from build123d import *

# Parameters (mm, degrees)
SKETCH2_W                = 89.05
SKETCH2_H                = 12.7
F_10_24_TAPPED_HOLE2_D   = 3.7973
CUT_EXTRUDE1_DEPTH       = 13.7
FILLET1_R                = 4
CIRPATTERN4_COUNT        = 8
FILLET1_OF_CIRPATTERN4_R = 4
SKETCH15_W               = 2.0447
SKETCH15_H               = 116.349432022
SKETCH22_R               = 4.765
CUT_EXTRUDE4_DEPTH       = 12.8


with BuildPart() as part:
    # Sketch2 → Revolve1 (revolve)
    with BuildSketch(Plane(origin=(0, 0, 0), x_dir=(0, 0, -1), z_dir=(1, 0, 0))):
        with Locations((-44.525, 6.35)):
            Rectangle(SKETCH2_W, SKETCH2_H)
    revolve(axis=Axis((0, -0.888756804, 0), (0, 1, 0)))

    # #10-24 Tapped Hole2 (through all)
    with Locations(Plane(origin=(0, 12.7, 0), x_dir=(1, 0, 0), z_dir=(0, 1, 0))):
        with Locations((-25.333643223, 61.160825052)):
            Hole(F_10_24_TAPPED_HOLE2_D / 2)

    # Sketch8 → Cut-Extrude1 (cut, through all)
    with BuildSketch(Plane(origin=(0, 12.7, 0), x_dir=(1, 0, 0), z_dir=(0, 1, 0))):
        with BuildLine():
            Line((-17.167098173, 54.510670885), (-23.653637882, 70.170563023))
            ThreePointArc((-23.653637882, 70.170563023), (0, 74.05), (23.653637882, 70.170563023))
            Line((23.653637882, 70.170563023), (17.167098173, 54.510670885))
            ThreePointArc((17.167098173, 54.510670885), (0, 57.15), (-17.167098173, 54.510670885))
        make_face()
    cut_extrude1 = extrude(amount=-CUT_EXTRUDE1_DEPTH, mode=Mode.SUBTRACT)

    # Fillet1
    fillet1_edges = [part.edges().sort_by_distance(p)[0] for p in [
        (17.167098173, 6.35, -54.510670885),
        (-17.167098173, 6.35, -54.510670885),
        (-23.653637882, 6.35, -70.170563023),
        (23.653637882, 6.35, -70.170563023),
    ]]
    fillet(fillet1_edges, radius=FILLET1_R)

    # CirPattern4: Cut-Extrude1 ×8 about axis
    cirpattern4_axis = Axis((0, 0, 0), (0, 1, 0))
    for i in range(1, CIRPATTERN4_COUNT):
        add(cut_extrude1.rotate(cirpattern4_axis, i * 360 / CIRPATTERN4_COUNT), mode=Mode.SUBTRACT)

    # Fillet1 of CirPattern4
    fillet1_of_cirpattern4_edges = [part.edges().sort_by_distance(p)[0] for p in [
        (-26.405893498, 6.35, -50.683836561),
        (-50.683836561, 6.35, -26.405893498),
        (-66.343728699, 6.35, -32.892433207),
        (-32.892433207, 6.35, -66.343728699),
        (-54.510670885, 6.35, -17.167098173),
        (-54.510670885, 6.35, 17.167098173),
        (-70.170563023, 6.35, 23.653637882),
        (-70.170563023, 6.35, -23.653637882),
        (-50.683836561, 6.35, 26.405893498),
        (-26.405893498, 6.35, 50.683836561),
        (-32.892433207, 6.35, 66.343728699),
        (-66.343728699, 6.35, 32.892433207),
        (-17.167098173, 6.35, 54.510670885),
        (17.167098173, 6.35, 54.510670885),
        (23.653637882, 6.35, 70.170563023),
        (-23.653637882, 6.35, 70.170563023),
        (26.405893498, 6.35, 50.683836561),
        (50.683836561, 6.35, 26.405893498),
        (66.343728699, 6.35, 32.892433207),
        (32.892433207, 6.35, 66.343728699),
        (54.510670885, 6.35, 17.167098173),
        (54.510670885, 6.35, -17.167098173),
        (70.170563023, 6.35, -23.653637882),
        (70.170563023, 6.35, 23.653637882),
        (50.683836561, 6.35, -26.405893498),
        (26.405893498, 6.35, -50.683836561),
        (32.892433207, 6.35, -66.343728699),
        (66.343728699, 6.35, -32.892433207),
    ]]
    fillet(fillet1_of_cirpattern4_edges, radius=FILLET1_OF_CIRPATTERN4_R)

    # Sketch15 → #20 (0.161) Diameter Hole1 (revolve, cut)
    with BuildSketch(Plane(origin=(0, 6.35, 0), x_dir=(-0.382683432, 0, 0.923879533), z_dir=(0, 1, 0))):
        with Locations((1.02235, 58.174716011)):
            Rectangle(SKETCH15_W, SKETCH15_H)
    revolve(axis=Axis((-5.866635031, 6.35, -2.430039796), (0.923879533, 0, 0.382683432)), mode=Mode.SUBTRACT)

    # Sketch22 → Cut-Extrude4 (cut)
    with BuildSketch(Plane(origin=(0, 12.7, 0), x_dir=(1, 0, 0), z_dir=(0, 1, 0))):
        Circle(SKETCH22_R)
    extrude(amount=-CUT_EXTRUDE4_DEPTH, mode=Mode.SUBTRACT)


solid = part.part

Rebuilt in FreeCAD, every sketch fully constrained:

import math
import FreeCAD as App
import Part
import Sketcher
from FreeCAD import Vector
Q = App.Units.Quantity


def edges_at(feature, points):
    """Names of the edges that pass closest to the given points."""
    edges = feature.Shape.Edges
    near = lambda p: min(range(len(edges)), key=lambda i: edges[i].distToShape(Part.Vertex(*p))[0])
    return sorted({f"Edge{near(p) + 1}" for p in points})

doc = App.newDocument("Part")
body = doc.addObject("PartDesign::Body", "Body")

# Sketch on YZ plane
sketch1 = doc.addObject("Sketcher::SketchObject", "Sketch")
body.addObject(sketch1)
sketch1.AttachmentSupport = (doc.YZ_Plane, [""])
sketch1.MapMode = "FlatFace"
sketch1.addGeometry(Part.LineSegment(Vector(13, 89, 0), Vector(0, 89, 0)), False)
sketch1.addGeometry(Part.LineSegment(Vector(0, 89, 0), Vector(0, 0, 0)), False)
sketch1.addGeometry(Part.LineSegment(Vector(0, 0, 0), Vector(13, 0, 0)), False)
sketch1.addGeometry(Part.LineSegment(Vector(13, 0, 0), Vector(13, 89, 0)), False)
sketch1.addConstraint(Sketcher.Constraint("Coincident", 0, 2, 1, 1))
sketch1.addConstraint(Sketcher.Constraint("Coincident", 1, 2, 2, 1))
sketch1.addConstraint(Sketcher.Constraint("Coincident", 2, 2, 3, 1))
sketch1.addConstraint(Sketcher.Constraint("Coincident", 3, 2, 0, 1))
sketch1.addConstraint(Sketcher.Constraint("Horizontal", 0))
sketch1.addConstraint(Sketcher.Constraint("Vertical", 1))
sketch1.addConstraint(Sketcher.Constraint("Horizontal", 2))
sketch1.addConstraint(Sketcher.Constraint("Vertical", 3))
sketch1.addConstraint(Sketcher.Constraint("Coincident", 1, 2, -1, 1))
sketch1.addConstraint(Sketcher.Constraint("DistanceX", 0, 2, 0, 1, 12.7))
sketch1.addConstraint(Sketcher.Constraint("DistanceY", 1, 2, 1, 1, 89.05))
revolution = doc.addObject("PartDesign::Revolution", "Revolution")
body.addObject(revolution)
revolution.Profile = sketch1
revolution.ReferenceAxis = (sketch1, ["H_Axis"])
revolution.Angle = 360

# Sketch on XZ plane
sketch2 = doc.addObject("Sketcher::SketchObject", "Sketch001")
body.addObject(sketch2)
sketch2.AttachmentSupport = (doc.XZ_Plane, [""])
sketch2.MapMode = "FlatFace"
sketch2.AttachmentOffset = App.Placement(Vector(0, 0, -12.7), App.Rotation())
sketch2.addGeometry(Part.Circle(Vector(-25.3, -61.2, 0), Vector(0, 0, 1), 1.9), False)
sketch2.addConstraint(Sketcher.Constraint("Diameter", 0, 3.7973))
sketch2.addConstraint(Sketcher.Constraint("DistanceX", 0, 3, -1, 1, 25.333643))
sketch2.addConstraint(Sketcher.Constraint("DistanceY", 0, 3, -1, 1, 61.160825))
doc.recompute()
hole = doc.addObject("PartDesign::Hole", "Hole")
body.addObject(hole)
hole.Profile = sketch2
hole.ThreadType = "None"
hole.Diameter = 3.7973
hole.DepthType = "ThroughAll"
hole.Reversed = True

# Sketch on XZ plane
sketch3 = doc.addObject("Sketcher::SketchObject", "Sketch002")
body.addObject(sketch3)
sketch3.AttachmentSupport = (doc.XZ_Plane, [""])
sketch3.MapMode = "FlatFace"
sketch3.AttachmentOffset = App.Placement(Vector(0, 0, -12.7), App.Rotation())
sketch3.addGeometry(Part.LineSegment(Vector(-24, -70, 0), Vector(-17, -55, 0)), False)
sketch3.addGeometry(Part.ArcOfCircle(Part.Circle(Vector(0, 0, 0), Vector(0, 0, 1), 57), math.radians(-107), math.radians(-73)), False)
sketch3.addGeometry(Part.LineSegment(Vector(17, -55, 0), Vector(24, -70, 0)), False)
sketch3.addGeometry(Part.ArcOfCircle(Part.Circle(Vector(0, 0, 0), Vector(0, 0, 1), 74), math.radians(-109), math.radians(-71)), False)
sketch3.addConstraint(Sketcher.Constraint("Coincident", 0, 2, 1, 1))
sketch3.addConstraint(Sketcher.Constraint("Coincident", 1, 2, 2, 1))
sketch3.addConstraint(Sketcher.Constraint("Coincident", 2, 2, 3, 2))
sketch3.addConstraint(Sketcher.Constraint("Coincident", 3, 1, 0, 1))
sketch3.addConstraint(Sketcher.Constraint("Coincident", 1, 3, -1, 1))
sketch3.addConstraint(Sketcher.Constraint("Coincident", 3, 3, -1, 1))
sketch3.addConstraint(Sketcher.Constraint("Horizontal", 0, 2, 1, 2))
sketch3.addConstraint(Sketcher.Constraint("Horizontal", 2, 2, 3, 1))
sketch3.addConstraint(Sketcher.Constraint("Radius", 1, 57.15))
sketch3.addConstraint(Sketcher.Constraint("Radius", 3, 74.05))
sketch3.addConstraint(Sketcher.Constraint("Angle", 0, Q("67.5 deg")))
sketch3.addConstraint(Sketcher.Constraint("DistanceX", 0, 2, -1, 1, 17.167098))
pocket1 = doc.addObject("PartDesign::Pocket", "Pocket")
body.addObject(pocket1)
pocket1.Profile = sketch3
pocket1.Type = "ThroughAll"
pocket1.Reversed = True
doc.recompute()

fillet = doc.addObject("PartDesign::Fillet", "Fillet")
body.addObject(fillet)
fillet.Base = (pocket1, edges_at(pocket1, [
    (17.167, 6.35, -54.511),
    (-17.167, 6.35, -54.511),
    (-23.654, 6.35, -70.171),
    (23.654, 6.35, -70.171),
]))
fillet.Radius = 4
doc.recompute()

polarpattern = doc.addObject("PartDesign::PolarPattern", "PolarPattern")
body.addObject(polarpattern)
polarpattern.Originals = [pocket1]
polarpattern.Axis = (doc.Y_Axis, [""])
polarpattern.Angle = 360
polarpattern.Occurrences = 8
body.Tip = polarpattern
doc.recompute()

fillet2 = doc.addObject("PartDesign::Fillet", "Fillet001")
body.addObject(fillet2)
fillet2.Base = (polarpattern, edges_at(polarpattern, [
    (-26.406, 6.35, -50.684),
    (-50.684, 6.35, -26.406),
    (-66.344, 6.35, -32.892),
    (-32.892, 6.35, -66.344),
    (-54.511, 6.35, -17.167),
    (-54.511, 6.35, 17.167),
    (-70.171, 6.35, 23.654),
    (-70.171, 6.35, -23.654),
    (-50.684, 6.35, 26.406),
    (-26.406, 6.35, 50.684),
    (-32.892, 6.35, 66.344),
    (-66.344, 6.35, 32.892),
    (-17.167, 6.35, 54.511),
    (17.167, 6.35, 54.511),
    (23.654, 6.35, 70.171),
    (-23.654, 6.35, 70.171),
    (26.406, 6.35, 50.684),
    (50.684, 6.35, 26.406),
    (66.344, 6.35, 32.892),
    (32.892, 6.35, 66.344),
    (54.511, 6.35, 17.167),
    (54.511, 6.35, -17.167),
    (70.171, 6.35, -23.654),
    (70.171, 6.35, 23.654),
    (50.684, 6.35, -26.406),
    (26.406, 6.35, -50.684),
    (32.892, 6.35, -66.344),
    (66.344, 6.35, -32.892),
]))
fillet2.Radius = 4

# Sketch on XZ plane
sketch4 = doc.addObject("Sketcher::SketchObject", "Sketch003")
body.addObject(sketch4)
sketch4.AttachmentSupport = (doc.XZ_Plane, [""])
sketch4.MapMode = "FlatFace"
sketch4.AttachmentOffset = App.Placement(Vector(0, 0, -6.35), App.Rotation())
sketch4.addGeometry(Part.LineSegment(Vector(107.5, 44.5, 0), Vector(0, 0, 0)), False)
sketch4.addGeometry(Part.LineSegment(Vector(0, 0, 0), Vector(-0.8, 1.9, 0)), False)
sketch4.addGeometry(Part.LineSegment(Vector(-0.8, 1.9, 0), Vector(106.7, 46.4, 0)), False)
sketch4.addGeometry(Part.LineSegment(Vector(106.7, 46.4, 0), Vector(107.5, 44.5, 0)), False)
sketch4.addGeometry(Part.LineSegment(Vector(0, 0, 0), Vector(107.5, 44.5, 0)), True)  # axis
sketch4.addConstraint(Sketcher.Constraint("Coincident", 0, 2, 1, 1))
sketch4.addConstraint(Sketcher.Constraint("Coincident", 1, 2, 2, 1))
sketch4.addConstraint(Sketcher.Constraint("Coincident", 2, 2, 3, 1))
sketch4.addConstraint(Sketcher.Constraint("Coincident", 3, 2, 0, 1))
sketch4.addConstraint(Sketcher.Constraint("Coincident", 0, 2, -1, 1))
sketch4.addConstraint(Sketcher.Constraint("Coincident", 4, 1, -1, 1))
sketch4.addConstraint(Sketcher.Constraint("Coincident", 4, 2, 3, 2))
sketch4.addConstraint(Sketcher.Constraint("Perpendicular", 0, 1))
sketch4.addConstraint(Sketcher.Constraint("Perpendicular", 1, 2))
sketch4.addConstraint(Sketcher.Constraint("Perpendicular", 2, 3))
sketch4.addConstraint(Sketcher.Constraint("Angle", 0, Q("-157.5 deg")))
sketch4.addConstraint(Sketcher.Constraint("DistanceY", -1, 1, 3, 2, 44.525))
sketch4.addConstraint(Sketcher.Constraint("Distance", 1, 2.0447))
groove = doc.addObject("PartDesign::Groove", "Groove")
body.addObject(groove)
groove.Profile = sketch4
groove.ReferenceAxis = (sketch4, ["Axis0"])
groove.Angle = 360

# Sketch on XZ plane
sketch5 = doc.addObject("Sketcher::SketchObject", "Sketch004")
body.addObject(sketch5)
sketch5.AttachmentSupport = (doc.XZ_Plane, [""])
sketch5.MapMode = "FlatFace"
sketch5.AttachmentOffset = App.Placement(Vector(0, 0, -12.7), App.Rotation())
sketch5.addGeometry(Part.Circle(Vector(0, 0, 0), Vector(0, 0, 1), 4.8), False)
sketch5.addConstraint(Sketcher.Constraint("Coincident", 0, 3, -1, 1))
sketch5.addConstraint(Sketcher.Constraint("Diameter", 0, 9.53))
pocket2 = doc.addObject("PartDesign::Pocket", "Pocket001")
body.addObject(pocket2)
pocket2.Profile = sketch5
pocket2.Length = 12.8
pocket2.Reversed = True

doc.recompute()
